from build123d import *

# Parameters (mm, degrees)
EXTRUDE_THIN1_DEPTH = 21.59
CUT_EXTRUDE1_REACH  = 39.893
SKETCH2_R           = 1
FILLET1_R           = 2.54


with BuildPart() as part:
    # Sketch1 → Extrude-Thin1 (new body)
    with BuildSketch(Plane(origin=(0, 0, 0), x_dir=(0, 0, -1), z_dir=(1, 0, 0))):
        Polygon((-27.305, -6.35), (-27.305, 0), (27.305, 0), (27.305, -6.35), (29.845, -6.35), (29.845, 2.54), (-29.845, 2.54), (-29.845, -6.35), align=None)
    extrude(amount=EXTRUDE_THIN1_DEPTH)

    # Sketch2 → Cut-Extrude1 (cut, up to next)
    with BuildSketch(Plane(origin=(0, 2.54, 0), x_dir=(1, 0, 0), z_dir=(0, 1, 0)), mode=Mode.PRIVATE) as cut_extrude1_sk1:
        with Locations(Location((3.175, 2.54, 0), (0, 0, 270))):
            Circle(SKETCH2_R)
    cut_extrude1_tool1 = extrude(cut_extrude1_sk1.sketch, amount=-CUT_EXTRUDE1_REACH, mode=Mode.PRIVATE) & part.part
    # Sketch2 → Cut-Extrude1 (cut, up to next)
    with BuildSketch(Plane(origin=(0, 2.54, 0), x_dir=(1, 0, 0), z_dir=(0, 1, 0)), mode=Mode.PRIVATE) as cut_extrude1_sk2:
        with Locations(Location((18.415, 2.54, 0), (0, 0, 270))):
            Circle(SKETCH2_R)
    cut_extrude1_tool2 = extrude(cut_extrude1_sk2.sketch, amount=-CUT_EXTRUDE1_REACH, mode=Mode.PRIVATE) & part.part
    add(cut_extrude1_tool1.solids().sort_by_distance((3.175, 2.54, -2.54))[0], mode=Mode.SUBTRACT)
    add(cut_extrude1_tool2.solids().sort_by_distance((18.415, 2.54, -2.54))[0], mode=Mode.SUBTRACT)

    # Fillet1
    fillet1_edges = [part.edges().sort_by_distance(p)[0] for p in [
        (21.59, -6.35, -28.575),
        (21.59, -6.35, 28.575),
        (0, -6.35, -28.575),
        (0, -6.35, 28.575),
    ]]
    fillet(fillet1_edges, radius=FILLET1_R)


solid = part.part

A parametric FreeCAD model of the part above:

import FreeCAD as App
import Part
import Sketcher
Q = App.Units.Quantity


def edges_at(feature, points):
    """Names of the edges that pass closest to the given points."""
    edges = feature.Shape.Edges
    near = lambda p: min(range(len(edges)), key=lambda i: edges[i].distToShape(Part.Vertex(*p))[0])
    return sorted({f"Edge{near(p) + 1}" for p in points})


def add_polygon(sketch, points):
    """Adds a closed chain of lines whose ends are joined by coincident constraints."""
    first, n = sketch.GeometryCount, len(points)
    for a, b in zip(points, points[1:] + points[:1]):
        sketch.addGeometry(Part.LineSegment(App.Vector(*a, 0), App.Vector(*b, 0)), False)
    for i in range(n):
        sketch.addConstraint(Sketcher.Constraint("Coincident", first + i, 2, first + (i + 1) % n, 1))

doc = App.newDocument("Part")
params = doc.addObject("Spreadsheet::Sheet", "Params")
for row, (alias, value) in enumerate([
    ("sketch1_height", "0.1 in"),
    ("sketch1_width", "0.25 in"),
    ("sketch1_width2", "0.35 in"),
    ("sketch1_height2", "2.15 in"),
    ("pad1_length", "0.85 in"),
    ("fillet_radius", "0.1 in"),
], start=1):
    params.set(f"A{row}", alias)
    params.set(f"B{row}", "=" + value)
    params.setAlias(f"B{row}", alias)

body = doc.addObject("PartDesign::Body", "Body")

sketch1 = body.newObject("Sketcher::SketchObject", "Sketch")
sketch1.AttachmentSupport = (doc.getObject("YZ_Plane"), [""])
sketch1.MapMode = "FlatFace"
add_polygon(sketch1, [(-6.3, 27.3), (0, 27.3), (0, -27.3), (-6.3, -27.3), (-6.3, -29.8), (2.5, -29.8), (2.5, 29.8), (-6.3, 29.8)])
sketch1.addConstraint(Sketcher.Constraint("Horizontal", 0))
sketch1.addConstraint(Sketcher.Constraint("Vertical", 1))
sketch1.addConstraint(Sketcher.Constraint("Horizontal", 2))
sketch1.addConstraint(Sketcher.Constraint("Vertical", 3))
sketch1.addConstraint(Sketcher.Constraint("Horizontal", 4))
sketch1.addConstraint(Sketcher.Constraint("Vertical", 5))
sketch1.addConstraint(Sketcher.Constraint("Horizontal", 6))
sketch1.addConstraint(Sketcher.Constraint("Vertical", 7))
sketch1.addConstraint(Sketcher.Constraint("Symmetric", 0, 2, 1, 2, -1, 1))
sketch1.addConstraint(Sketcher.Constraint("Symmetric", 3, 2, 6, 2, -1))
sketch1.addConstraint(Sketcher.Constraint("DistanceY", 3, 2, 3, 1, Q("0.1 in")))
sketch1.addConstraint(Sketcher.Constraint("DistanceX", 0, 1, 0, 2, Q("0.25 in")))
sketch1.addConstraint(Sketcher.Constraint("DistanceX", 4, 1, 4, 2, Q("0.35 in")))
sketch1.addConstraint(Sketcher.Constraint("DistanceY", 1, 2, 1, 1, Q("2.15 in")))
sketch1.setExpression("Constraints[18]", "Params.sketch1_height")
sketch1.setExpression("Constraints[19]", "Params.sketch1_width")
sketch1.setExpression("Constraints[20]", "Params.sketch1_width2")
sketch1.setExpression("Constraints[21]", "Params.sketch1_height2")
pad1 = body.newObject("PartDesign::Pad", "Pad")
pad1.Profile = sketch1
pad1.setExpression("Length", "Params.pad1_length")

sketch2 = body.newObject("Sketcher::SketchObject", "Sketch001")
sketch2.AttachmentSupport = (doc.getObject("XZ_Plane"), [""])
sketch2.MapMode = "FlatFace"
sketch2.AttachmentOffset = App.Placement(App.Vector(0, 0, -0.1 * 25.4), App.Rotation())
sketch2.addGeometry(Part.Circle(App.Vector(3.2, -2.5, 0), App.Vector(0, 0, 1), 1), False)
sketch2.addConstraint(Sketcher.Constraint("DistanceY", 0, 3, -1, 1, Q("0.1 in")))
sketch2.addConstraint(Sketcher.Constraint("Diameter", 0, Q("2 mm")))
sketch2.addConstraint(Sketcher.Constraint("DistanceX", -1, 1, 0, 3, Q("0.125 in")))
pocket1 = body.newObject("PartDesign::Pocket", "Pocket")
pocket1.Profile = sketch2
pocket1.Type = "UpToFirst"
pocket1.Reversed = True

sketch3 = body.newObject("Sketcher::SketchObject", "Sketch002")
sketch3.AttachmentSupport = (doc.getObject("XZ_Plane"), [""])
sketch3.MapMode = "FlatFace"
sketch3.AttachmentOffset = App.Placement(App.Vector(0, 0, -0.1 * 25.4), App.Rotation())
sketch3.addGeometry(Part.Circle(App.Vector(18.4, -2.5, 0), App.Vector(0, 0, 1), 1), False)
sketch3.addConstraint(Sketcher.Constraint("DistanceY", 0, 3, -1, 1, Q("0.1 in")))
sketch3.addConstraint(Sketcher.Constraint("Diameter", 0, Q("2 mm")))
sketch3.addConstraint(Sketcher.Constraint("DistanceX", -1, 1, 0, 3, Q("0.725 in")))
pocket2 = body.newObject("PartDesign::Pocket", "Pocket001")
pocket2.Profile = sketch3
pocket2.Type = "UpToFirst"
pocket2.Reversed = True
doc.recompute()

fillet = body.newObject("PartDesign::Fillet", "Fillet")
fillet.Base = (pocket2, edges_at(pocket2, [
    (21.59, -6.35, -28.575),
    (21.59, -6.35, 28.575),
    (0, -6.35, -28.575),
    (0, -6.35, 28.575),
]))
fillet.setExpression("Radius", "Params.fillet_radius")

doc.recompute()
